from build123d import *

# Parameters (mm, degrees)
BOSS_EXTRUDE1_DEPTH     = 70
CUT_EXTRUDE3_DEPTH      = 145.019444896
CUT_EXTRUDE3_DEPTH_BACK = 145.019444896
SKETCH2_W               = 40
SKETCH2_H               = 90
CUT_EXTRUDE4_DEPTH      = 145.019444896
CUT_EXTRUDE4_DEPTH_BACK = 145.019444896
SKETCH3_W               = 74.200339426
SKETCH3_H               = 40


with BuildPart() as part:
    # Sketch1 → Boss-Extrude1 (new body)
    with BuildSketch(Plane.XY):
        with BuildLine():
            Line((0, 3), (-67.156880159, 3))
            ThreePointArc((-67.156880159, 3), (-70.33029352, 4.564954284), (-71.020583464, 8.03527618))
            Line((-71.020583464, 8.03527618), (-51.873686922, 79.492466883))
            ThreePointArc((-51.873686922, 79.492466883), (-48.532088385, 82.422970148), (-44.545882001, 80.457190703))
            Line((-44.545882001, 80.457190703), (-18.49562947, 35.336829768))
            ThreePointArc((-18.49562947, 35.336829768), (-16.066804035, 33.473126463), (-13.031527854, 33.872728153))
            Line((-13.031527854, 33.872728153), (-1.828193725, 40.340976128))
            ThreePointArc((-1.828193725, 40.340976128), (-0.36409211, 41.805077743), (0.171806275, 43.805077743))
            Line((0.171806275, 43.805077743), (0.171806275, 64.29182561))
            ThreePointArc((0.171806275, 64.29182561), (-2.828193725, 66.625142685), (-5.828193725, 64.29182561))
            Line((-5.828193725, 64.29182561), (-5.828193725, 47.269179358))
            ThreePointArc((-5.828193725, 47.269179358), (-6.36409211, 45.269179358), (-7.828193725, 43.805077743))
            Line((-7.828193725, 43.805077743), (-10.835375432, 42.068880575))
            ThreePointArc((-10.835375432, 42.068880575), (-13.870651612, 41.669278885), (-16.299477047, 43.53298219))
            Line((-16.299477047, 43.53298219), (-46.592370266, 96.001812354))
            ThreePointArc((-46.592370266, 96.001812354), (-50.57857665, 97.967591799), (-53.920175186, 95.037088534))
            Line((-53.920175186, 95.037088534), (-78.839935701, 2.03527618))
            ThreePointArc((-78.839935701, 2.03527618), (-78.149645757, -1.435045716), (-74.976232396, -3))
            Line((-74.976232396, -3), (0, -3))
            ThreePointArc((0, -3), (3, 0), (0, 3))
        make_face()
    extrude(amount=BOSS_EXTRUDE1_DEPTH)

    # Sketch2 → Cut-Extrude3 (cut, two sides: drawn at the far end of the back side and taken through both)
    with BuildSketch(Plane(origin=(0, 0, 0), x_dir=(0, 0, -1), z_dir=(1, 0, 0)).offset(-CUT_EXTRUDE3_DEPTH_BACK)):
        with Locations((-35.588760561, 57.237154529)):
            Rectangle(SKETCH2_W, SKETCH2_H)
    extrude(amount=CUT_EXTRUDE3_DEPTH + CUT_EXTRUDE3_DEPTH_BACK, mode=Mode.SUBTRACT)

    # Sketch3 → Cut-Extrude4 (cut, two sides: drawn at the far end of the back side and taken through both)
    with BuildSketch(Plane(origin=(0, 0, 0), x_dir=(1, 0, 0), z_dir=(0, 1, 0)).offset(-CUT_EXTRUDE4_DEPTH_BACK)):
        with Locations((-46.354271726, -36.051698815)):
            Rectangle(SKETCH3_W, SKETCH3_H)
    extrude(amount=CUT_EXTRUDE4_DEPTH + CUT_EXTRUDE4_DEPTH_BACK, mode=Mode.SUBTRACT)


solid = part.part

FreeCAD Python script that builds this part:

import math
import FreeCAD as App
import Part
import Sketcher
Q = App.Units.Quantity


def add_polygon(sketch, points):
    """Adds a closed chain of lines whose ends are joined by coincident constraints."""
    first, n = sketch.GeometryCount, len(points)
    for a, b in zip(points, points[1:] + points[:1]):
        sketch.addGeometry(Part.LineSegment(App.Vector(*a, 0), App.Vector(*b, 0)), False)
    for i in range(n):
        sketch.addConstraint(Sketcher.Constraint("Coincident", first + i, 2, first + (i + 1) % n, 1))

doc = App.newDocument("Part")
body = doc.addObject("PartDesign::Body", "Body")

# Sketch on XY plane
sketch1 = doc.addObject("Sketcher::SketchObject", "Sketch")
body.addObject(sketch1)
sketch1.AttachmentSupport = (doc.XY_Plane, [""])
sketch1.MapMode = "FlatFace"
sketch1.addGeometry(Part.LineSegment(App.Vector(0, 3, 0), App.Vector(-67.15688, 3, 0)), False)
sketch1.addGeometry(Part.ArcOfCircle(Part.Circle(App.Vector(-67.15688, 7, 0), App.Vector(0, 0, 1), 4), math.radians(165), math.radians(270)), False)
sketch1.addGeometry(Part.LineSegment(App.Vector(-71.020583, 8.035276, 0), App.Vector(-51.873687, 79.492467, 0)), False)
sketch1.addGeometry(Part.ArcOfCircle(Part.Circle(App.Vector(-48.009984, 78.457191, 0), App.Vector(0, 0, 1), 4), math.radians(30), math.radians(165)), False)
sketch1.addGeometry(Part.LineSegment(App.Vector(-44.545882, 80.457191, 0), App.Vector(-18.495629, 35.33683, 0)), False)
sketch1.addGeometry(Part.ArcOfCircle(Part.Circle(App.Vector(-15.031528, 37.33683, 0), App.Vector(0, 0, 1), 4), math.radians(-150), math.radians(-60)), False)
sketch1.addGeometry(Part.LineSegment(App.Vector(-13.031528, 33.872728, 0), App.Vector(-1.828194, 40.340976, 0)), False)
sketch1.addGeometry(Part.ArcOfCircle(Part.Circle(App.Vector(-3.828194, 43.805078, 0), App.Vector(0, 0, 1), 4), math.radians(-60), math.radians(0)), False)
sketch1.addGeometry(Part.LineSegment(App.Vector(0.171806, 43.805078, 0), App.Vector(0.171806, 64.291826, 0)), False)
sketch1.addGeometry(Part.ArcOfCircle(Part.Circle(App.Vector(-2.828194, 63.529899, 0), App.Vector(0, 0, 1), 3.095243), math.radians(14.25042), math.radians(165.74958)), False)
sketch1.addGeometry(Part.LineSegment(App.Vector(-5.828194, 64.291826, 0), App.Vector(-5.828194, 47.269179, 0)), False)
sketch1.addGeometry(Part.ArcOfCircle(Part.Circle(App.Vector(-9.828194, 47.269179, 0), App.Vector(0, 0, 1), 4), math.radians(-60), math.radians(0)), False)
sketch1.addGeometry(Part.LineSegment(App.Vector(-7.828194, 43.805078, 0), App.Vector(-10.835375, 42.068881, 0)), False)
sketch1.addGeometry(Part.ArcOfCircle(Part.Circle(App.Vector(-12.835375, 45.532982, 0), App.Vector(0, 0, 1), 4), math.radians(-150), math.radians(-60)), False)
sketch1.addGeometry(Part.LineSegment(App.Vector(-16.299477, 43.532982, 0), App.Vector(-46.59237, 96.001812, 0)), False)
sketch1.addGeometry(Part.ArcOfCircle(Part.Circle(App.Vector(-50.056472, 94.001812, 0), App.Vector(0, 0, 1), 4), math.radians(30), math.radians(165)), False)
sketch1.addGeometry(Part.LineSegment(App.Vector(-53.920175, 95.037089, 0), App.Vector(-78.839936, 2.035276, 0)), False)
sketch1.addGeometry(Part.ArcOfCircle(Part.Circle(App.Vector(-74.976232, 1, 0), App.Vector(0, 0, 1), 4), math.radians(165), math.radians(270)), False)
sketch1.addGeometry(Part.LineSegment(App.Vector(-74.976232, -3, 0), App.Vector(0, -3, 0)), False)
sketch1.addGeometry(Part.ArcOfCircle(Part.Circle(App.Vector(0, 0, 0), App.Vector(0, 0, 1), 3), math.radians(-90), math.radians(90)), False)
sketch1.addConstraint(Sketcher.Constraint("Tangent", 0, 2, 1, 2))
sketch1.addConstraint(Sketcher.Constraint("Tangent", 1, 1, 2, 1))
sketch1.addConstraint(Sketcher.Constraint("Tangent", 2, 2, 3, 2))
sketch1.addConstraint(Sketcher.Constraint("Tangent", 3, 1, 4, 1))
sketch1.addConstraint(Sketcher.Constraint("Tangent", 4, 2, 5, 1))
sketch1.addConstraint(Sketcher.Constraint("Tangent", 5, 2, 6, 1))
sketch1.addConstraint(Sketcher.Constraint("Tangent", 6, 2, 7, 1))
sketch1.addConstraint(Sketcher.Constraint("Tangent", 7, 2, 8, 1))
sketch1.addConstraint(Sketcher.Constraint("Coincident", 8, 2, 9, 1))
sketch1.addConstraint(Sketcher.Constraint("Coincident", 9, 2, 10, 1))
sketch1.addConstraint(Sketcher.Constraint("Tangent", 10, 2, 11, 2))
sketch1.addConstraint(Sketcher.Constraint("Tangent", 11, 1, 12, 1))
sketch1.addConstraint(Sketcher.Constraint("Tangent", 12, 2, 13, 2))
sketch1.addConstraint(Sketcher.Constraint("Tangent", 13, 1, 14, 1))
sketch1.addConstraint(Sketcher.Constraint("Tangent", 14, 2, 15, 1))
sketch1.addConstraint(Sketcher.Constraint("Tangent", 15, 2, 16, 1))
sketch1.addConstraint(Sketcher.Constraint("Tangent", 16, 2, 17, 1))
sketch1.addConstraint(Sketcher.Constraint("Tangent", 17, 2, 18, 1))
sketch1.addConstraint(Sketcher.Constraint("Tangent", 18, 2, 19, 1))
sketch1.addConstraint(Sketcher.Constraint("Tangent", 19, 2, 0, 1))
sketch1.addConstraint(Sketcher.Constraint("Horizontal", 0))
sketch1.addConstraint(Sketcher.Constraint("Vertical", 8))
sketch1.addConstraint(Sketcher.Constraint("Vertical", 10))
sketch1.addConstraint(Sketcher.Constraint("Horizontal", 18))
sketch1.addConstraint(Sketcher.Constraint("Coincident", 19, 3, -1, 1))
sketch1.addConstraint(Sketcher.Constraint("Equal", 1, 3))
sketch1.addConstraint(Sketcher.Constraint("Equal", 3, 5))
sketch1.addConstraint(Sketcher.Constraint("Equal", 5, 7))
sketch1.addConstraint(Sketcher.Constraint("Equal", 7, 11))
sketch1.addConstraint(Sketcher.Constraint("Equal", 11, 13))
sketch1.addConstraint(Sketcher.Constraint("Equal", 13, 15))
sketch1.addConstraint(Sketcher.Constraint("Equal", 15, 17))
sketch1.addConstraint(Sketcher.Constraint("Perpendicular", 4, 6))
sketch1.addConstraint(Sketcher.Constraint("Parallel", 6, 12))
sketch1.addConstraint(Sketcher.Constraint("Perpendicular", 12, 14))
sketch1.addConstraint(Sketcher.Constraint("Parallel", 2, 16))
sketch1.addConstraint(Sketcher.Constraint("Horizontal", 8, 2, 9, 2))
sketch1.addConstraint(Sketcher.Constraint("Horizontal", 7, 2, 11, 1))
sketch1.addConstraint(Sketcher.Constraint("Radius", 1, 4.0))
sketch1.addConstraint(Sketcher.Constraint("Radius", 19, 3.0))
sketch1.addConstraint(Sketcher.Constraint("Angle", 2, Q("75 deg")))
sketch1.addConstraint(Sketcher.Constraint("Angle", 4, Q("-60 deg")))
sketch1.addConstraint(Sketcher.Constraint("DistanceX", 7, 3, 9, 3, 1.0))
sketch1.addConstraint(Sketcher.Constraint("Radius", 9, 3.095243))
sketch1.addConstraint(Sketcher.Constraint("DistanceX", 0, 2, 0, 1, 67.15688))
sketch1.addConstraint(Sketcher.Constraint("DistanceY", -1, 1, 9, 3, 63.529899))
sketch1.addConstraint(Sketcher.Constraint("DistanceY", 12, 2, 11, 3, 5.200299))
sketch1.addConstraint(Sketcher.Constraint("Distance", 16, 96.282561))
sketch1.addConstraint(Sketcher.Constraint("DistanceX", 18, 1, 18, 2, 74.976232))
sketch1.addConstraint(Sketcher.Constraint("DistanceY", 8, 1, 8, 2, 20.486748))
sketch1.addConstraint(Sketcher.Constraint("DistanceY", -1, 1, 3, 3, 78.457191))
pad1 = doc.addObject("PartDesign::Pad", "Pad")
body.addObject(pad1)
pad1.Profile = sketch1
pad1.Length = 70

# Sketch on YZ plane
sketch2 = doc.addObject("Sketcher::SketchObject", "Sketch001")
body.addObject(sketch2)
sketch2.AttachmentSupport = (doc.YZ_Plane, [""])
sketch2.MapMode = "FlatFace"
add_polygon(sketch2, [(102.237155, 55.588761), (12.237155, 55.588761), (12.237155, 15.588761), (102.237155, 15.588761)])  # lines 0-3
sketch2.addConstraint(Sketcher.Constraint("Horizontal", 0))
sketch2.addConstraint(Sketcher.Constraint("Vertical", 1))
sketch2.addConstraint(Sketcher.Constraint("Horizontal", 2))
sketch2.addConstraint(Sketcher.Constraint("Vertical", 3))
sketch2.addConstraint(Sketcher.Constraint("DistanceX", 0, 2, 0, 1, 90.0))
sketch2.addConstraint(Sketcher.Constraint("DistanceY", 1, 2, 1, 1, 40.0))
sketch2.addConstraint(Sketcher.Constraint("DistanceY", -1, 1, 0, 2, 55.588761))
sketch2.addConstraint(Sketcher.Constraint("DistanceX", -1, 1, 0, 2, 12.237155))
pocket1 = doc.addObject("PartDesign::Pocket", "Pocket")
body.addObject(pocket1)
pocket1.Profile = sketch2
pocket1.Type = "ThroughAll"
pocket1.Midplane = True

# Sketch on XZ plane
sketch3 = doc.addObject("Sketcher::SketchObject", "Sketch002")
body.addObject(sketch3)
sketch3.AttachmentSupport = (doc.XZ_Plane, [""])
sketch3.MapMode = "FlatFace"
add_polygon(sketch3, [(-83.454441, 16.051699), (-83.454441, 56.051699), (-9.254102, 56.051699), (-9.254102, 16.051699)])  # lines 0-3
sketch3.addConstraint(Sketcher.Constraint("Vertical", 0))
sketch3.addConstraint(Sketcher.Constraint("Horizontal", 1))
sketch3.addConstraint(Sketcher.Constraint("Vertical", 2))
sketch3.addConstraint(Sketcher.Constraint("Horizontal", 3))
sketch3.addConstraint(Sketcher.Constraint("DistanceY", 0, 1, 0, 2, 40.0))
sketch3.addConstraint(Sketcher.Constraint("DistanceX", 1, 1, 1, 2, 74.200339))
sketch3.addConstraint(Sketcher.Constraint("DistanceY", -1, 1, 0, 2, 56.051699))
sketch3.addConstraint(Sketcher.Constraint("DistanceX", 0, 2, -1, 1, 83.454441))
pocket2 = doc.addObject("PartDesign::Pocket", "Pocket001")
body.addObject(pocket2)
pocket2.Profile = sketch3
pocket2.Type = "ThroughAll"
pocket2.Midplane = True

doc.recompute()
